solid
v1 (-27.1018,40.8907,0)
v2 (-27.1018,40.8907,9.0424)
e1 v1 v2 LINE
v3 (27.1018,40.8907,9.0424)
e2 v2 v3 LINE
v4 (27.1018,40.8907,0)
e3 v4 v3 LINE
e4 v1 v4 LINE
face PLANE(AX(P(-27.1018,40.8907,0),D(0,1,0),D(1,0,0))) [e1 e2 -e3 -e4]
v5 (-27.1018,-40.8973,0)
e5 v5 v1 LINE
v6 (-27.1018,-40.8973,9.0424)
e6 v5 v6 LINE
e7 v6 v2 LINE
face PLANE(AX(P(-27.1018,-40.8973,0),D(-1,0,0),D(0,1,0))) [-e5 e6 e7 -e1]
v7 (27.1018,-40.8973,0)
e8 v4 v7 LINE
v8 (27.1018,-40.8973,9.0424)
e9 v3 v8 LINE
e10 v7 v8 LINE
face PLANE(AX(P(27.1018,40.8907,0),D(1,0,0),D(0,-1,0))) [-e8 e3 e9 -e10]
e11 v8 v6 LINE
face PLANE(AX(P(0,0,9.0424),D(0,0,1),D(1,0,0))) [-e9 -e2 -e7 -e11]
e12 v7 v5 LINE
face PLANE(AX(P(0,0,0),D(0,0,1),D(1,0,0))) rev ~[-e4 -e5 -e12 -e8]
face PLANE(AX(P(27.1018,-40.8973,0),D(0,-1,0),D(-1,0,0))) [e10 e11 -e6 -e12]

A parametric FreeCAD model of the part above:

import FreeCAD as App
import Part
import Sketcher
Q = App.Units.Quantity

doc = App.newDocument("Part")
body = doc.addObject("PartDesign::Body", "Body")

# Sketch on XY plane
sketch1 = doc.addObject("Sketcher::SketchObject", "Sketch")
body.addObject(sketch1)
sketch1.AttachmentSupport = (doc.XY_Plane, [""])
sketch1.MapMode = "FlatFace"
sketch1.addGeometry(Part.LineSegment(App.Vector(27.1018, 40.8907, 0), App.Vector(-27.1018, 40.8907, 0)), False)
sketch1.addGeometry(Part.LineSegment(App.Vector(-27.1018, 40.8907, 0), App.Vector(-27.1018, -40.8973, 0)), False)
sketch1.addGeometry(Part.LineSegment(App.Vector(-27.1018, -40.8973, 0), App.Vector(27.1018, -40.8973, 0)), False)
sketch1.addGeometry(Part.LineSegment(App.Vector(27.1018, -40.8973, 0), App.Vector(27.1018, 40.8907, 0)), False)
sketch1.addConstraint(Sketcher.Constraint("Coincident", 0, 2, 1, 1))
sketch1.addConstraint(Sketcher.Constraint("Coincident", 1, 2, 2, 1))
sketch1.addConstraint(Sketcher.Constraint("Coincident", 2, 2, 3, 1))
sketch1.addConstraint(Sketcher.Constraint("Coincident", 3, 2, 0, 1))
sketch1.addConstraint(Sketcher.Constraint("Horizontal", 0))
sketch1.addConstraint(Sketcher.Constraint("Vertical", 1))
sketch1.addConstraint(Sketcher.Constraint("Horizontal", 2))
sketch1.addConstraint(Sketcher.Constraint("Vertical", 3))
sketch1.addConstraint(Sketcher.Constraint("DistanceY", 1, 2, 1, 1, Q("3.22 in")))
sketch1.addConstraint(Sketcher.Constraint("DistanceX", 0, 2, 0, 1, Q("2.134 in")))
sketch1.addConstraint(Sketcher.Constraint("DistanceX", 0, 2, -1, 1, Q("1.067 in")))
sketch1.addConstraint(Sketcher.Constraint("DistanceY", -1, 1, 0, 2, Q("40.8907 mm")))
pad1 = doc.addObject("PartDesign::Pad", "Pad")
body.addObject(pad1)
pad1.Profile = sketch1
pad1.Length = Q("0.356 in")

doc.recompute()
